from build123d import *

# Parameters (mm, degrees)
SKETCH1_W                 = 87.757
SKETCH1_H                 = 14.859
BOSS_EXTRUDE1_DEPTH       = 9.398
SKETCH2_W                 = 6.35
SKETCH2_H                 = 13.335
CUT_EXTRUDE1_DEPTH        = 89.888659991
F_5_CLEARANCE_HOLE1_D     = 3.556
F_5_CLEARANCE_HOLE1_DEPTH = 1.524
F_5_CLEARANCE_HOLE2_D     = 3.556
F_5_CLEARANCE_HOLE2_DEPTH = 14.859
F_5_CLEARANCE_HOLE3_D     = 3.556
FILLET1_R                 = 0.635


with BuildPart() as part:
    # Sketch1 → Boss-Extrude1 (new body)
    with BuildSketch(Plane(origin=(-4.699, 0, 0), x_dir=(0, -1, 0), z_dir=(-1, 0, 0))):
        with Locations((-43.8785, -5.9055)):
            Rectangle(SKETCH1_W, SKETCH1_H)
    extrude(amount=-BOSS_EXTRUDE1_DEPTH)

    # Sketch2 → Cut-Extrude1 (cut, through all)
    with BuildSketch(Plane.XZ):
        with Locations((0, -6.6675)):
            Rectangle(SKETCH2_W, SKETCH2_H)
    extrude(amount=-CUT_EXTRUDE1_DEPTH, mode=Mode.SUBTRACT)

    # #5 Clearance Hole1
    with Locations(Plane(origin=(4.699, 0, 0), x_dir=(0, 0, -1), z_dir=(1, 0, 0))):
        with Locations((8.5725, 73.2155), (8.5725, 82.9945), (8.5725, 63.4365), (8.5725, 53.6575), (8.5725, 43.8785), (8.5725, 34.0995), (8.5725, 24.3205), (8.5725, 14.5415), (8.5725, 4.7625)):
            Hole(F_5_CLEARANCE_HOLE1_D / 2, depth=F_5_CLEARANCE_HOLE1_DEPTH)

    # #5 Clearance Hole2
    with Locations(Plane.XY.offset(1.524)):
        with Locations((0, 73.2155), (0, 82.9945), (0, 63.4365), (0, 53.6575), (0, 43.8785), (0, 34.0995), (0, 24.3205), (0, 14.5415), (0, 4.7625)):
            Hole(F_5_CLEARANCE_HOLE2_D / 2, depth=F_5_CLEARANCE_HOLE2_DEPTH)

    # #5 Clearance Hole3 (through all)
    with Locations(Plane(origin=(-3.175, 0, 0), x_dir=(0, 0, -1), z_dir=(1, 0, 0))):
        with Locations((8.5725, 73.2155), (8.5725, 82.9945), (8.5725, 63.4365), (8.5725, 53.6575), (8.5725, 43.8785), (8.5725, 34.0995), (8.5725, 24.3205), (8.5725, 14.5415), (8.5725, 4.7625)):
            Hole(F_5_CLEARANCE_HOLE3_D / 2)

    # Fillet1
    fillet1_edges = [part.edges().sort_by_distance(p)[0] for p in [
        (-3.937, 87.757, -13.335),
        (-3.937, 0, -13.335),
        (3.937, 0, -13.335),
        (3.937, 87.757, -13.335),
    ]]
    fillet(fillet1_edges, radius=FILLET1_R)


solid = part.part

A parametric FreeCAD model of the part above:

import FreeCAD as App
import Part
import Sketcher

V = App.Vector
Q = App.Units.Quantity


def edges_at(feature, points):
    """Names of the edges that pass closest to the given points."""
    edges = feature.Shape.Edges
    near = lambda p: min(range(len(edges)), key=lambda i: edges[i].distToShape(Part.Vertex(*p))[0])
    return sorted({f"Edge{near(p) + 1}" for p in points})

doc = App.newDocument("Part")
body = doc.addObject("PartDesign::Body", "Body")

# Sketch on YZ plane
sketch1 = doc.addObject("Sketcher::SketchObject", "Sketch")
body.addObject(sketch1)
sketch1.AttachmentSupport = (doc.YZ_Plane, [""])
sketch1.MapMode = "FlatFace"
sketch1.AttachmentOffset = App.Placement(V(0, 0, -0.185 * 25.4), App.Rotation())
sketch1.addGeometry(Part.LineSegment(V(88, 2, 0), V(88, -13, 0)), False)
sketch1.addGeometry(Part.LineSegment(V(88, -13, 0), V(0, -13, 0)), False)
sketch1.addGeometry(Part.LineSegment(V(0, -13, 0), V(0, 2, 0)), False)
sketch1.addGeometry(Part.LineSegment(V(0, 2, 0), V(88, 2, 0)), False)
sketch1.addConstraint(Sketcher.Constraint("Coincident", 0, 2, 1, 1))
sketch1.addConstraint(Sketcher.Constraint("Coincident", 1, 2, 2, 1))
sketch1.addConstraint(Sketcher.Constraint("Coincident", 2, 2, 3, 1))
sketch1.addConstraint(Sketcher.Constraint("Coincident", 3, 2, 0, 1))
sketch1.addConstraint(Sketcher.Constraint("Vertical", 0))
sketch1.addConstraint(Sketcher.Constraint("Horizontal", 1))
sketch1.addConstraint(Sketcher.Constraint("Vertical", 2))
sketch1.addConstraint(Sketcher.Constraint("Horizontal", 3))
sketch1.addConstraint(Sketcher.Constraint("PointOnObject", 1, 2, -2))
sketch1.addConstraint(Sketcher.Constraint("DistanceX", 1, 2, 1, 1, Q("3.455 in")))
sketch1.addConstraint(Sketcher.Constraint("DistanceY", 0, 2, 0, 1, Q("0.585 in")))
sketch1.addConstraint(Sketcher.Constraint("DistanceY", -1, 1, 2, 2, Q("0.06 in")))
pad1 = doc.addObject("PartDesign::Pad", "Pad")
body.addObject(pad1)
pad1.Profile = sketch1
pad1.Length = Q("0.37 in")

# Sketch on XZ plane
sketch2 = doc.addObject("Sketcher::SketchObject", "Sketch001")
body.addObject(sketch2)
sketch2.AttachmentSupport = (doc.XZ_Plane, [""])
sketch2.MapMode = "FlatFace"
sketch2.addGeometry(Part.LineSegment(V(-3, 0, 0), V(-3, -13, 0)), False)
sketch2.addGeometry(Part.LineSegment(V(-3, -13, 0), V(3, -13, 0)), False)
sketch2.addGeometry(Part.LineSegment(V(3, -13, 0), V(3, 0, 0)), False)
sketch2.addGeometry(Part.LineSegment(V(3, 0, 0), V(-3, 0, 0)), False)
sketch2.addConstraint(Sketcher.Constraint("Coincident", 0, 2, 1, 1))
sketch2.addConstraint(Sketcher.Constraint("Coincident", 1, 2, 2, 1))
sketch2.addConstraint(Sketcher.Constraint("Coincident", 2, 2, 3, 1))
sketch2.addConstraint(Sketcher.Constraint("Coincident", 3, 2, 0, 1))
sketch2.addConstraint(Sketcher.Constraint("Vertical", 0))
sketch2.addConstraint(Sketcher.Constraint("Horizontal", 1))
sketch2.addConstraint(Sketcher.Constraint("Vertical", 2))
sketch2.addConstraint(Sketcher.Constraint("Horizontal", 3))
sketch2.addConstraint(Sketcher.Constraint("Symmetric", 2, 2, 3, 2, -1, 1))
sketch2.addConstraint(Sketcher.Constraint("DistanceX", 1, 1, 1, 2, Q("0.25 in")))
sketch2.addConstraint(Sketcher.Constraint("DistanceY", 0, 2, 0, 1, Q("0.525 in")))
pocket1 = doc.addObject("PartDesign::Pocket", "Pocket")
body.addObject(pocket1)
pocket1.Profile = sketch2
pocket1.Type = "ThroughAll"

# Sketch on YZ plane
sketch3 = doc.addObject("Sketcher::SketchObject", "Sketch002")
body.addObject(sketch3)
sketch3.AttachmentSupport = (doc.YZ_Plane, [""])
sketch3.MapMode = "FlatFace"
sketch3.AttachmentOffset = App.Placement(V(0, 0, 0.185 * 25.4), App.Rotation())
sketch3.addGeometry(Part.Circle(V(73.2, -8.6, 0), V(0, 0, 1), 1.8), False)
sketch3.addGeometry(Part.Circle(V(83, -8.6, 0), V(0, 0, 1), 1.8), False)
sketch3.addGeometry(Part.Circle(V(63.4, -8.6, 0), V(0, 0, 1), 1.8), False)
sketch3.addGeometry(Part.Circle(V(53.7, -8.6, 0), V(0, 0, 1), 1.8), False)
sketch3.addGeometry(Part.Circle(V(43.9, -8.6, 0), V(0, 0, 1), 1.8), False)
sketch3.addGeometry(Part.Circle(V(34.1, -8.6, 0), V(0, 0, 1), 1.8), False)
sketch3.addGeometry(Part.Circle(V(24.3, -8.6, 0), V(0, 0, 1), 1.8), False)
sketch3.addGeometry(Part.Circle(V(14.5, -8.6, 0), V(0, 0, 1), 1.8), False)
sketch3.addGeometry(Part.Circle(V(4.8, -8.6, 0), V(0, 0, 1), 1.8), False)
sketch3.addConstraint(Sketcher.Constraint("Equal", 0, 1))
sketch3.addConstraint(Sketcher.Constraint("Equal", 1, 2))
sketch3.addConstraint(Sketcher.Constraint("Equal", 2, 3))
sketch3.addConstraint(Sketcher.Constraint("Equal", 3, 4))
sketch3.addConstraint(Sketcher.Constraint("Equal", 4, 5))
sketch3.addConstraint(Sketcher.Constraint("Equal", 5, 6))
sketch3.addConstraint(Sketcher.Constraint("Equal", 6, 7))
sketch3.addConstraint(Sketcher.Constraint("Equal", 7, 8))
sketch3.addConstraint(Sketcher.Constraint("Horizontal", 0, 3, 1, 3))
sketch3.addConstraint(Sketcher.Constraint("Horizontal", 1, 3, 2, 3))
sketch3.addConstraint(Sketcher.Constraint("Horizontal", 2, 3, 3, 3))
sketch3.addConstraint(Sketcher.Constraint("Horizontal", 3, 3, 4, 3))
sketch3.addConstraint(Sketcher.Constraint("Horizontal", 4, 3, 5, 3))
sketch3.addConstraint(Sketcher.Constraint("Horizontal", 5, 3, 6, 3))
sketch3.addConstraint(Sketcher.Constraint("Horizontal", 6, 3, 7, 3))
sketch3.addConstraint(Sketcher.Constraint("Horizontal", 7, 3, 8, 3))
sketch3.addConstraint(Sketcher.Constraint("Diameter", 0, Q("0.14 in")))
sketch3.addConstraint(Sketcher.Constraint("DistanceX", 2, 3, 1, 3, Q("0.77 in")))
sketch3.addConstraint(Sketcher.Constraint("DistanceX", 3, 3, 0, 3, Q("0.77 in")))
sketch3.addConstraint(Sketcher.Constraint("DistanceX", 4, 3, 2, 3, Q("0.77 in")))
sketch3.addConstraint(Sketcher.Constraint("DistanceX", 5, 3, 3, 3, Q("0.77 in")))
sketch3.addConstraint(Sketcher.Constraint("DistanceX", 6, 3, 4, 3, Q("0.77 in")))
sketch3.addConstraint(Sketcher.Constraint("DistanceX", 7, 3, 5, 3, Q("0.77 in")))
sketch3.addConstraint(Sketcher.Constraint("DistanceX", 8, 3, 6, 3, Q("0.77 in")))
sketch3.addConstraint(Sketcher.Constraint("DistanceX", -1, 1, 8, 3, Q("0.1875 in")))
sketch3.addConstraint(Sketcher.Constraint("DistanceX", 0, 3, 1, 3, Q("0.385 in")))
sketch3.addConstraint(Sketcher.Constraint("DistanceY", 0, 3, -1, 1, Q("0.3375 in")))
doc.recompute()
hole = doc.addObject("PartDesign::Hole", "Hole")
body.addObject(hole)
hole.Profile = sketch3
hole.ThreadType = "None"
hole.Diameter = Q("0.14 in")
hole.DepthType = "Dimension"
hole.Depth = Q("0.06 in")
hole.DrillPoint = "Flat"

# Sketch on XY plane
sketch4 = doc.addObject("Sketcher::SketchObject", "Sketch003")
body.addObject(sketch4)
sketch4.AttachmentSupport = (doc.XY_Plane, [""])
sketch4.MapMode = "FlatFace"
sketch4.AttachmentOffset = App.Placement(V(0, 0, 0.06 * 25.4), App.Rotation())
sketch4.addGeometry(Part.Circle(V(0, 73.2, 0), V(0, 0, 1), 1.8), False)
sketch4.addGeometry(Part.Circle(V(0, 83, 0), V(0, 0, 1), 1.8), False)
sketch4.addGeometry(Part.Circle(V(0, 63.4, 0), V(0, 0, 1), 1.8), False)
sketch4.addGeometry(Part.Circle(V(0, 53.7, 0), V(0, 0, 1), 1.8), False)
sketch4.addGeometry(Part.Circle(V(0, 43.9, 0), V(0, 0, 1), 1.8), False)
sketch4.addGeometry(Part.Circle(V(0, 34.1, 0), V(0, 0, 1), 1.8), False)
sketch4.addGeometry(Part.Circle(V(0, 24.3, 0), V(0, 0, 1), 1.8), False)
sketch4.addGeometry(Part.Circle(V(0, 14.5, 0), V(0, 0, 1), 1.8), False)
sketch4.addGeometry(Part.Circle(V(0, 4.8, 0), V(0, 0, 1), 1.8), False)
sketch4.addConstraint(Sketcher.Constraint("Equal", 0, 1))
sketch4.addConstraint(Sketcher.Constraint("Equal", 1, 2))
sketch4.addConstraint(Sketcher.Constraint("Equal", 2, 3))
sketch4.addConstraint(Sketcher.Constraint("Equal", 3, 4))
sketch4.addConstraint(Sketcher.Constraint("Equal", 4, 5))
sketch4.addConstraint(Sketcher.Constraint("Equal", 5, 6))
sketch4.addConstraint(Sketcher.Constraint("Equal", 6, 7))
sketch4.addConstraint(Sketcher.Constraint("Equal", 7, 8))
sketch4.addConstraint(Sketcher.Constraint("PointOnObject", 0, 3, -2))
sketch4.addConstraint(Sketcher.Constraint("PointOnObject", 1, 3, -2))
sketch4.addConstraint(Sketcher.Constraint("PointOnObject", 2, 3, -2))
sketch4.addConstraint(Sketcher.Constraint("PointOnObject", 3, 3, -2))
sketch4.addConstraint(Sketcher.Constraint("PointOnObject", 4, 3, -2))
sketch4.addConstraint(Sketcher.Constraint("PointOnObject", 5, 3, -2))
sketch4.addConstraint(Sketcher.Constraint("PointOnObject", 6, 3, -2))
sketch4.addConstraint(Sketcher.Constraint("PointOnObject", 7, 3, -2))
sketch4.addConstraint(Sketcher.Constraint("PointOnObject", 8, 3, -2))
sketch4.addConstraint(Sketcher.Constraint("Diameter", 0, Q("0.14 in")))
sketch4.addConstraint(Sketcher.Constraint("DistanceY", 2, 3, 1, 3, Q("0.77 in")))
sketch4.addConstraint(Sketcher.Constraint("DistanceY", 3, 3, 0, 3, Q("0.77 in")))
sketch4.addConstraint(Sketcher.Constraint("DistanceY", 4, 3, 2, 3, Q("0.77 in")))
sketch4.addConstraint(Sketcher.Constraint("DistanceY", 5, 3, 3, 3, Q("0.77 in")))
sketch4.addConstraint(Sketcher.Constraint("DistanceY", 6, 3, 4, 3, Q("0.77 in")))
sketch4.addConstraint(Sketcher.Constraint("DistanceY", 7, 3, 5, 3, Q("0.77 in")))
sketch4.addConstraint(Sketcher.Constraint("DistanceY", 8, 3, 6, 3, Q("0.77 in")))
sketch4.addConstraint(Sketcher.Constraint("DistanceY", -1, 1, 8, 3, Q("0.1875 in")))
sketch4.addConstraint(Sketcher.Constraint("DistanceY", 0, 3, 1, 3, Q("0.385 in")))
doc.recompute()
hole2 = doc.addObject("PartDesign::Hole", "Hole001")
body.addObject(hole2)
hole2.Profile = sketch4
hole2.ThreadType = "None"
hole2.Diameter = Q("0.14 in")
hole2.DepthType = "Dimension"
hole2.Depth = Q("0.585 in")
hole2.DrillPoint = "Flat"

# Sketch on YZ plane
sketch5 = doc.addObject("Sketcher::SketchObject", "Sketch004")
body.addObject(sketch5)
sketch5.AttachmentSupport = (doc.YZ_Plane, [""])
sketch5.MapMode = "FlatFace"
sketch5.AttachmentOffset = App.Placement(V(0, 0, -0.125 * 25.4), App.Rotation())
sketch5.addGeometry(Part.Circle(V(73.2, -8.6, 0), V(0, 0, 1), 1.8), False)
sketch5.addGeometry(Part.Circle(V(83, -8.6, 0), V(0, 0, 1), 1.8), False)
sketch5.addGeometry(Part.Circle(V(63.4, -8.6, 0), V(0, 0, 1), 1.8), False)
sketch5.addGeometry(Part.Circle(V(53.7, -8.6, 0), V(0, 0, 1), 1.8), False)
sketch5.addGeometry(Part.Circle(V(43.9, -8.6, 0), V(0, 0, 1), 1.8), False)
sketch5.addGeometry(Part.Circle(V(34.1, -8.6, 0), V(0, 0, 1), 1.8), False)
sketch5.addGeometry(Part.Circle(V(24.3, -8.6, 0), V(0, 0, 1), 1.8), False)
sketch5.addGeometry(Part.Circle(V(14.5, -8.6, 0), V(0, 0, 1), 1.8), False)
sketch5.addGeometry(Part.Circle(V(4.8, -8.6, 0), V(0, 0, 1), 1.8), False)
sketch5.addConstraint(Sketcher.Constraint("Equal", 0, 1))
sketch5.addConstraint(Sketcher.Constraint("Equal", 1, 2))
sketch5.addConstraint(Sketcher.Constraint("Equal", 2, 3))
sketch5.addConstraint(Sketcher.Constraint("Equal", 3, 4))
sketch5.addConstraint(Sketcher.Constraint("Equal", 4, 5))
sketch5.addConstraint(Sketcher.Constraint("Equal", 5, 6))
sketch5.addConstraint(Sketcher.Constraint("Equal", 6, 7))
sketch5.addConstraint(Sketcher.Constraint("Equal", 7, 8))
sketch5.addConstraint(Sketcher.Constraint("Horizontal", 0, 3, 1, 3))
sketch5.addConstraint(Sketcher.Constraint("Horizontal", 1, 3, 2, 3))
sketch5.addConstraint(Sketcher.Constraint("Horizontal", 2, 3, 3, 3))
sketch5.addConstraint(Sketcher.Constraint("Horizontal", 3, 3, 4, 3))
sketch5.addConstraint(Sketcher.Constraint("Horizontal", 4, 3, 5, 3))
sketch5.addConstraint(Sketcher.Constraint("Horizontal", 5, 3, 6, 3))
sketch5.addConstraint(Sketcher.Constraint("Horizontal", 6, 3, 7, 3))
sketch5.addConstraint(Sketcher.Constraint("Horizontal", 7, 3, 8, 3))
sketch5.addConstraint(Sketcher.Constraint("Diameter", 0, Q("0.14 in")))
sketch5.addConstraint(Sketcher.Constraint("DistanceX", 2, 3, 1, 3, Q("0.77 in")))
sketch5.addConstraint(Sketcher.Constraint("DistanceX", 3, 3, 0, 3, Q("0.77 in")))
sketch5.addConstraint(Sketcher.Constraint("DistanceX", 4, 3, 2, 3, Q("0.77 in")))
sketch5.addConstraint(Sketcher.Constraint("DistanceX", 5, 3, 3, 3, Q("0.77 in")))
sketch5.addConstraint(Sketcher.Constraint("DistanceX", 6, 3, 4, 3, Q("0.77 in")))
sketch5.addConstraint(Sketcher.Constraint("DistanceX", 7, 3, 5, 3, Q("0.77 in")))
sketch5.addConstraint(Sketcher.Constraint("DistanceX", 8, 3, 6, 3, Q("0.77 in")))
sketch5.addConstraint(Sketcher.Constraint("DistanceX", -1, 1, 8, 3, Q("0.1875 in")))
sketch5.addConstraint(Sketcher.Constraint("DistanceX", 0, 3, 1, 3, Q("0.385 in")))
sketch5.addConstraint(Sketcher.Constraint("DistanceY", 0, 3, -1, 1, Q("0.3375 in")))
doc.recompute()
hole3 = doc.addObject("PartDesign::Hole", "Hole002")
body.addObject(hole3)
hole3.Profile = sketch5
hole3.ThreadType = "None"
hole3.Diameter = Q("0.14 in")
hole3.DepthType = "ThroughAll"
doc.recompute()

fillet = doc.addObject("PartDesign::Fillet", "Fillet")
body.addObject(fillet)
fillet.Base = (hole3, edges_at(hole3, [
    (-3.937, 87.757, -13.335),
    (-3.937, 0, -13.335),
    (3.937, 0, -13.335),
    (3.937, 87.757, -13.335),
]))
fillet.Radius = Q("0.025 in")

doc.recompute()
